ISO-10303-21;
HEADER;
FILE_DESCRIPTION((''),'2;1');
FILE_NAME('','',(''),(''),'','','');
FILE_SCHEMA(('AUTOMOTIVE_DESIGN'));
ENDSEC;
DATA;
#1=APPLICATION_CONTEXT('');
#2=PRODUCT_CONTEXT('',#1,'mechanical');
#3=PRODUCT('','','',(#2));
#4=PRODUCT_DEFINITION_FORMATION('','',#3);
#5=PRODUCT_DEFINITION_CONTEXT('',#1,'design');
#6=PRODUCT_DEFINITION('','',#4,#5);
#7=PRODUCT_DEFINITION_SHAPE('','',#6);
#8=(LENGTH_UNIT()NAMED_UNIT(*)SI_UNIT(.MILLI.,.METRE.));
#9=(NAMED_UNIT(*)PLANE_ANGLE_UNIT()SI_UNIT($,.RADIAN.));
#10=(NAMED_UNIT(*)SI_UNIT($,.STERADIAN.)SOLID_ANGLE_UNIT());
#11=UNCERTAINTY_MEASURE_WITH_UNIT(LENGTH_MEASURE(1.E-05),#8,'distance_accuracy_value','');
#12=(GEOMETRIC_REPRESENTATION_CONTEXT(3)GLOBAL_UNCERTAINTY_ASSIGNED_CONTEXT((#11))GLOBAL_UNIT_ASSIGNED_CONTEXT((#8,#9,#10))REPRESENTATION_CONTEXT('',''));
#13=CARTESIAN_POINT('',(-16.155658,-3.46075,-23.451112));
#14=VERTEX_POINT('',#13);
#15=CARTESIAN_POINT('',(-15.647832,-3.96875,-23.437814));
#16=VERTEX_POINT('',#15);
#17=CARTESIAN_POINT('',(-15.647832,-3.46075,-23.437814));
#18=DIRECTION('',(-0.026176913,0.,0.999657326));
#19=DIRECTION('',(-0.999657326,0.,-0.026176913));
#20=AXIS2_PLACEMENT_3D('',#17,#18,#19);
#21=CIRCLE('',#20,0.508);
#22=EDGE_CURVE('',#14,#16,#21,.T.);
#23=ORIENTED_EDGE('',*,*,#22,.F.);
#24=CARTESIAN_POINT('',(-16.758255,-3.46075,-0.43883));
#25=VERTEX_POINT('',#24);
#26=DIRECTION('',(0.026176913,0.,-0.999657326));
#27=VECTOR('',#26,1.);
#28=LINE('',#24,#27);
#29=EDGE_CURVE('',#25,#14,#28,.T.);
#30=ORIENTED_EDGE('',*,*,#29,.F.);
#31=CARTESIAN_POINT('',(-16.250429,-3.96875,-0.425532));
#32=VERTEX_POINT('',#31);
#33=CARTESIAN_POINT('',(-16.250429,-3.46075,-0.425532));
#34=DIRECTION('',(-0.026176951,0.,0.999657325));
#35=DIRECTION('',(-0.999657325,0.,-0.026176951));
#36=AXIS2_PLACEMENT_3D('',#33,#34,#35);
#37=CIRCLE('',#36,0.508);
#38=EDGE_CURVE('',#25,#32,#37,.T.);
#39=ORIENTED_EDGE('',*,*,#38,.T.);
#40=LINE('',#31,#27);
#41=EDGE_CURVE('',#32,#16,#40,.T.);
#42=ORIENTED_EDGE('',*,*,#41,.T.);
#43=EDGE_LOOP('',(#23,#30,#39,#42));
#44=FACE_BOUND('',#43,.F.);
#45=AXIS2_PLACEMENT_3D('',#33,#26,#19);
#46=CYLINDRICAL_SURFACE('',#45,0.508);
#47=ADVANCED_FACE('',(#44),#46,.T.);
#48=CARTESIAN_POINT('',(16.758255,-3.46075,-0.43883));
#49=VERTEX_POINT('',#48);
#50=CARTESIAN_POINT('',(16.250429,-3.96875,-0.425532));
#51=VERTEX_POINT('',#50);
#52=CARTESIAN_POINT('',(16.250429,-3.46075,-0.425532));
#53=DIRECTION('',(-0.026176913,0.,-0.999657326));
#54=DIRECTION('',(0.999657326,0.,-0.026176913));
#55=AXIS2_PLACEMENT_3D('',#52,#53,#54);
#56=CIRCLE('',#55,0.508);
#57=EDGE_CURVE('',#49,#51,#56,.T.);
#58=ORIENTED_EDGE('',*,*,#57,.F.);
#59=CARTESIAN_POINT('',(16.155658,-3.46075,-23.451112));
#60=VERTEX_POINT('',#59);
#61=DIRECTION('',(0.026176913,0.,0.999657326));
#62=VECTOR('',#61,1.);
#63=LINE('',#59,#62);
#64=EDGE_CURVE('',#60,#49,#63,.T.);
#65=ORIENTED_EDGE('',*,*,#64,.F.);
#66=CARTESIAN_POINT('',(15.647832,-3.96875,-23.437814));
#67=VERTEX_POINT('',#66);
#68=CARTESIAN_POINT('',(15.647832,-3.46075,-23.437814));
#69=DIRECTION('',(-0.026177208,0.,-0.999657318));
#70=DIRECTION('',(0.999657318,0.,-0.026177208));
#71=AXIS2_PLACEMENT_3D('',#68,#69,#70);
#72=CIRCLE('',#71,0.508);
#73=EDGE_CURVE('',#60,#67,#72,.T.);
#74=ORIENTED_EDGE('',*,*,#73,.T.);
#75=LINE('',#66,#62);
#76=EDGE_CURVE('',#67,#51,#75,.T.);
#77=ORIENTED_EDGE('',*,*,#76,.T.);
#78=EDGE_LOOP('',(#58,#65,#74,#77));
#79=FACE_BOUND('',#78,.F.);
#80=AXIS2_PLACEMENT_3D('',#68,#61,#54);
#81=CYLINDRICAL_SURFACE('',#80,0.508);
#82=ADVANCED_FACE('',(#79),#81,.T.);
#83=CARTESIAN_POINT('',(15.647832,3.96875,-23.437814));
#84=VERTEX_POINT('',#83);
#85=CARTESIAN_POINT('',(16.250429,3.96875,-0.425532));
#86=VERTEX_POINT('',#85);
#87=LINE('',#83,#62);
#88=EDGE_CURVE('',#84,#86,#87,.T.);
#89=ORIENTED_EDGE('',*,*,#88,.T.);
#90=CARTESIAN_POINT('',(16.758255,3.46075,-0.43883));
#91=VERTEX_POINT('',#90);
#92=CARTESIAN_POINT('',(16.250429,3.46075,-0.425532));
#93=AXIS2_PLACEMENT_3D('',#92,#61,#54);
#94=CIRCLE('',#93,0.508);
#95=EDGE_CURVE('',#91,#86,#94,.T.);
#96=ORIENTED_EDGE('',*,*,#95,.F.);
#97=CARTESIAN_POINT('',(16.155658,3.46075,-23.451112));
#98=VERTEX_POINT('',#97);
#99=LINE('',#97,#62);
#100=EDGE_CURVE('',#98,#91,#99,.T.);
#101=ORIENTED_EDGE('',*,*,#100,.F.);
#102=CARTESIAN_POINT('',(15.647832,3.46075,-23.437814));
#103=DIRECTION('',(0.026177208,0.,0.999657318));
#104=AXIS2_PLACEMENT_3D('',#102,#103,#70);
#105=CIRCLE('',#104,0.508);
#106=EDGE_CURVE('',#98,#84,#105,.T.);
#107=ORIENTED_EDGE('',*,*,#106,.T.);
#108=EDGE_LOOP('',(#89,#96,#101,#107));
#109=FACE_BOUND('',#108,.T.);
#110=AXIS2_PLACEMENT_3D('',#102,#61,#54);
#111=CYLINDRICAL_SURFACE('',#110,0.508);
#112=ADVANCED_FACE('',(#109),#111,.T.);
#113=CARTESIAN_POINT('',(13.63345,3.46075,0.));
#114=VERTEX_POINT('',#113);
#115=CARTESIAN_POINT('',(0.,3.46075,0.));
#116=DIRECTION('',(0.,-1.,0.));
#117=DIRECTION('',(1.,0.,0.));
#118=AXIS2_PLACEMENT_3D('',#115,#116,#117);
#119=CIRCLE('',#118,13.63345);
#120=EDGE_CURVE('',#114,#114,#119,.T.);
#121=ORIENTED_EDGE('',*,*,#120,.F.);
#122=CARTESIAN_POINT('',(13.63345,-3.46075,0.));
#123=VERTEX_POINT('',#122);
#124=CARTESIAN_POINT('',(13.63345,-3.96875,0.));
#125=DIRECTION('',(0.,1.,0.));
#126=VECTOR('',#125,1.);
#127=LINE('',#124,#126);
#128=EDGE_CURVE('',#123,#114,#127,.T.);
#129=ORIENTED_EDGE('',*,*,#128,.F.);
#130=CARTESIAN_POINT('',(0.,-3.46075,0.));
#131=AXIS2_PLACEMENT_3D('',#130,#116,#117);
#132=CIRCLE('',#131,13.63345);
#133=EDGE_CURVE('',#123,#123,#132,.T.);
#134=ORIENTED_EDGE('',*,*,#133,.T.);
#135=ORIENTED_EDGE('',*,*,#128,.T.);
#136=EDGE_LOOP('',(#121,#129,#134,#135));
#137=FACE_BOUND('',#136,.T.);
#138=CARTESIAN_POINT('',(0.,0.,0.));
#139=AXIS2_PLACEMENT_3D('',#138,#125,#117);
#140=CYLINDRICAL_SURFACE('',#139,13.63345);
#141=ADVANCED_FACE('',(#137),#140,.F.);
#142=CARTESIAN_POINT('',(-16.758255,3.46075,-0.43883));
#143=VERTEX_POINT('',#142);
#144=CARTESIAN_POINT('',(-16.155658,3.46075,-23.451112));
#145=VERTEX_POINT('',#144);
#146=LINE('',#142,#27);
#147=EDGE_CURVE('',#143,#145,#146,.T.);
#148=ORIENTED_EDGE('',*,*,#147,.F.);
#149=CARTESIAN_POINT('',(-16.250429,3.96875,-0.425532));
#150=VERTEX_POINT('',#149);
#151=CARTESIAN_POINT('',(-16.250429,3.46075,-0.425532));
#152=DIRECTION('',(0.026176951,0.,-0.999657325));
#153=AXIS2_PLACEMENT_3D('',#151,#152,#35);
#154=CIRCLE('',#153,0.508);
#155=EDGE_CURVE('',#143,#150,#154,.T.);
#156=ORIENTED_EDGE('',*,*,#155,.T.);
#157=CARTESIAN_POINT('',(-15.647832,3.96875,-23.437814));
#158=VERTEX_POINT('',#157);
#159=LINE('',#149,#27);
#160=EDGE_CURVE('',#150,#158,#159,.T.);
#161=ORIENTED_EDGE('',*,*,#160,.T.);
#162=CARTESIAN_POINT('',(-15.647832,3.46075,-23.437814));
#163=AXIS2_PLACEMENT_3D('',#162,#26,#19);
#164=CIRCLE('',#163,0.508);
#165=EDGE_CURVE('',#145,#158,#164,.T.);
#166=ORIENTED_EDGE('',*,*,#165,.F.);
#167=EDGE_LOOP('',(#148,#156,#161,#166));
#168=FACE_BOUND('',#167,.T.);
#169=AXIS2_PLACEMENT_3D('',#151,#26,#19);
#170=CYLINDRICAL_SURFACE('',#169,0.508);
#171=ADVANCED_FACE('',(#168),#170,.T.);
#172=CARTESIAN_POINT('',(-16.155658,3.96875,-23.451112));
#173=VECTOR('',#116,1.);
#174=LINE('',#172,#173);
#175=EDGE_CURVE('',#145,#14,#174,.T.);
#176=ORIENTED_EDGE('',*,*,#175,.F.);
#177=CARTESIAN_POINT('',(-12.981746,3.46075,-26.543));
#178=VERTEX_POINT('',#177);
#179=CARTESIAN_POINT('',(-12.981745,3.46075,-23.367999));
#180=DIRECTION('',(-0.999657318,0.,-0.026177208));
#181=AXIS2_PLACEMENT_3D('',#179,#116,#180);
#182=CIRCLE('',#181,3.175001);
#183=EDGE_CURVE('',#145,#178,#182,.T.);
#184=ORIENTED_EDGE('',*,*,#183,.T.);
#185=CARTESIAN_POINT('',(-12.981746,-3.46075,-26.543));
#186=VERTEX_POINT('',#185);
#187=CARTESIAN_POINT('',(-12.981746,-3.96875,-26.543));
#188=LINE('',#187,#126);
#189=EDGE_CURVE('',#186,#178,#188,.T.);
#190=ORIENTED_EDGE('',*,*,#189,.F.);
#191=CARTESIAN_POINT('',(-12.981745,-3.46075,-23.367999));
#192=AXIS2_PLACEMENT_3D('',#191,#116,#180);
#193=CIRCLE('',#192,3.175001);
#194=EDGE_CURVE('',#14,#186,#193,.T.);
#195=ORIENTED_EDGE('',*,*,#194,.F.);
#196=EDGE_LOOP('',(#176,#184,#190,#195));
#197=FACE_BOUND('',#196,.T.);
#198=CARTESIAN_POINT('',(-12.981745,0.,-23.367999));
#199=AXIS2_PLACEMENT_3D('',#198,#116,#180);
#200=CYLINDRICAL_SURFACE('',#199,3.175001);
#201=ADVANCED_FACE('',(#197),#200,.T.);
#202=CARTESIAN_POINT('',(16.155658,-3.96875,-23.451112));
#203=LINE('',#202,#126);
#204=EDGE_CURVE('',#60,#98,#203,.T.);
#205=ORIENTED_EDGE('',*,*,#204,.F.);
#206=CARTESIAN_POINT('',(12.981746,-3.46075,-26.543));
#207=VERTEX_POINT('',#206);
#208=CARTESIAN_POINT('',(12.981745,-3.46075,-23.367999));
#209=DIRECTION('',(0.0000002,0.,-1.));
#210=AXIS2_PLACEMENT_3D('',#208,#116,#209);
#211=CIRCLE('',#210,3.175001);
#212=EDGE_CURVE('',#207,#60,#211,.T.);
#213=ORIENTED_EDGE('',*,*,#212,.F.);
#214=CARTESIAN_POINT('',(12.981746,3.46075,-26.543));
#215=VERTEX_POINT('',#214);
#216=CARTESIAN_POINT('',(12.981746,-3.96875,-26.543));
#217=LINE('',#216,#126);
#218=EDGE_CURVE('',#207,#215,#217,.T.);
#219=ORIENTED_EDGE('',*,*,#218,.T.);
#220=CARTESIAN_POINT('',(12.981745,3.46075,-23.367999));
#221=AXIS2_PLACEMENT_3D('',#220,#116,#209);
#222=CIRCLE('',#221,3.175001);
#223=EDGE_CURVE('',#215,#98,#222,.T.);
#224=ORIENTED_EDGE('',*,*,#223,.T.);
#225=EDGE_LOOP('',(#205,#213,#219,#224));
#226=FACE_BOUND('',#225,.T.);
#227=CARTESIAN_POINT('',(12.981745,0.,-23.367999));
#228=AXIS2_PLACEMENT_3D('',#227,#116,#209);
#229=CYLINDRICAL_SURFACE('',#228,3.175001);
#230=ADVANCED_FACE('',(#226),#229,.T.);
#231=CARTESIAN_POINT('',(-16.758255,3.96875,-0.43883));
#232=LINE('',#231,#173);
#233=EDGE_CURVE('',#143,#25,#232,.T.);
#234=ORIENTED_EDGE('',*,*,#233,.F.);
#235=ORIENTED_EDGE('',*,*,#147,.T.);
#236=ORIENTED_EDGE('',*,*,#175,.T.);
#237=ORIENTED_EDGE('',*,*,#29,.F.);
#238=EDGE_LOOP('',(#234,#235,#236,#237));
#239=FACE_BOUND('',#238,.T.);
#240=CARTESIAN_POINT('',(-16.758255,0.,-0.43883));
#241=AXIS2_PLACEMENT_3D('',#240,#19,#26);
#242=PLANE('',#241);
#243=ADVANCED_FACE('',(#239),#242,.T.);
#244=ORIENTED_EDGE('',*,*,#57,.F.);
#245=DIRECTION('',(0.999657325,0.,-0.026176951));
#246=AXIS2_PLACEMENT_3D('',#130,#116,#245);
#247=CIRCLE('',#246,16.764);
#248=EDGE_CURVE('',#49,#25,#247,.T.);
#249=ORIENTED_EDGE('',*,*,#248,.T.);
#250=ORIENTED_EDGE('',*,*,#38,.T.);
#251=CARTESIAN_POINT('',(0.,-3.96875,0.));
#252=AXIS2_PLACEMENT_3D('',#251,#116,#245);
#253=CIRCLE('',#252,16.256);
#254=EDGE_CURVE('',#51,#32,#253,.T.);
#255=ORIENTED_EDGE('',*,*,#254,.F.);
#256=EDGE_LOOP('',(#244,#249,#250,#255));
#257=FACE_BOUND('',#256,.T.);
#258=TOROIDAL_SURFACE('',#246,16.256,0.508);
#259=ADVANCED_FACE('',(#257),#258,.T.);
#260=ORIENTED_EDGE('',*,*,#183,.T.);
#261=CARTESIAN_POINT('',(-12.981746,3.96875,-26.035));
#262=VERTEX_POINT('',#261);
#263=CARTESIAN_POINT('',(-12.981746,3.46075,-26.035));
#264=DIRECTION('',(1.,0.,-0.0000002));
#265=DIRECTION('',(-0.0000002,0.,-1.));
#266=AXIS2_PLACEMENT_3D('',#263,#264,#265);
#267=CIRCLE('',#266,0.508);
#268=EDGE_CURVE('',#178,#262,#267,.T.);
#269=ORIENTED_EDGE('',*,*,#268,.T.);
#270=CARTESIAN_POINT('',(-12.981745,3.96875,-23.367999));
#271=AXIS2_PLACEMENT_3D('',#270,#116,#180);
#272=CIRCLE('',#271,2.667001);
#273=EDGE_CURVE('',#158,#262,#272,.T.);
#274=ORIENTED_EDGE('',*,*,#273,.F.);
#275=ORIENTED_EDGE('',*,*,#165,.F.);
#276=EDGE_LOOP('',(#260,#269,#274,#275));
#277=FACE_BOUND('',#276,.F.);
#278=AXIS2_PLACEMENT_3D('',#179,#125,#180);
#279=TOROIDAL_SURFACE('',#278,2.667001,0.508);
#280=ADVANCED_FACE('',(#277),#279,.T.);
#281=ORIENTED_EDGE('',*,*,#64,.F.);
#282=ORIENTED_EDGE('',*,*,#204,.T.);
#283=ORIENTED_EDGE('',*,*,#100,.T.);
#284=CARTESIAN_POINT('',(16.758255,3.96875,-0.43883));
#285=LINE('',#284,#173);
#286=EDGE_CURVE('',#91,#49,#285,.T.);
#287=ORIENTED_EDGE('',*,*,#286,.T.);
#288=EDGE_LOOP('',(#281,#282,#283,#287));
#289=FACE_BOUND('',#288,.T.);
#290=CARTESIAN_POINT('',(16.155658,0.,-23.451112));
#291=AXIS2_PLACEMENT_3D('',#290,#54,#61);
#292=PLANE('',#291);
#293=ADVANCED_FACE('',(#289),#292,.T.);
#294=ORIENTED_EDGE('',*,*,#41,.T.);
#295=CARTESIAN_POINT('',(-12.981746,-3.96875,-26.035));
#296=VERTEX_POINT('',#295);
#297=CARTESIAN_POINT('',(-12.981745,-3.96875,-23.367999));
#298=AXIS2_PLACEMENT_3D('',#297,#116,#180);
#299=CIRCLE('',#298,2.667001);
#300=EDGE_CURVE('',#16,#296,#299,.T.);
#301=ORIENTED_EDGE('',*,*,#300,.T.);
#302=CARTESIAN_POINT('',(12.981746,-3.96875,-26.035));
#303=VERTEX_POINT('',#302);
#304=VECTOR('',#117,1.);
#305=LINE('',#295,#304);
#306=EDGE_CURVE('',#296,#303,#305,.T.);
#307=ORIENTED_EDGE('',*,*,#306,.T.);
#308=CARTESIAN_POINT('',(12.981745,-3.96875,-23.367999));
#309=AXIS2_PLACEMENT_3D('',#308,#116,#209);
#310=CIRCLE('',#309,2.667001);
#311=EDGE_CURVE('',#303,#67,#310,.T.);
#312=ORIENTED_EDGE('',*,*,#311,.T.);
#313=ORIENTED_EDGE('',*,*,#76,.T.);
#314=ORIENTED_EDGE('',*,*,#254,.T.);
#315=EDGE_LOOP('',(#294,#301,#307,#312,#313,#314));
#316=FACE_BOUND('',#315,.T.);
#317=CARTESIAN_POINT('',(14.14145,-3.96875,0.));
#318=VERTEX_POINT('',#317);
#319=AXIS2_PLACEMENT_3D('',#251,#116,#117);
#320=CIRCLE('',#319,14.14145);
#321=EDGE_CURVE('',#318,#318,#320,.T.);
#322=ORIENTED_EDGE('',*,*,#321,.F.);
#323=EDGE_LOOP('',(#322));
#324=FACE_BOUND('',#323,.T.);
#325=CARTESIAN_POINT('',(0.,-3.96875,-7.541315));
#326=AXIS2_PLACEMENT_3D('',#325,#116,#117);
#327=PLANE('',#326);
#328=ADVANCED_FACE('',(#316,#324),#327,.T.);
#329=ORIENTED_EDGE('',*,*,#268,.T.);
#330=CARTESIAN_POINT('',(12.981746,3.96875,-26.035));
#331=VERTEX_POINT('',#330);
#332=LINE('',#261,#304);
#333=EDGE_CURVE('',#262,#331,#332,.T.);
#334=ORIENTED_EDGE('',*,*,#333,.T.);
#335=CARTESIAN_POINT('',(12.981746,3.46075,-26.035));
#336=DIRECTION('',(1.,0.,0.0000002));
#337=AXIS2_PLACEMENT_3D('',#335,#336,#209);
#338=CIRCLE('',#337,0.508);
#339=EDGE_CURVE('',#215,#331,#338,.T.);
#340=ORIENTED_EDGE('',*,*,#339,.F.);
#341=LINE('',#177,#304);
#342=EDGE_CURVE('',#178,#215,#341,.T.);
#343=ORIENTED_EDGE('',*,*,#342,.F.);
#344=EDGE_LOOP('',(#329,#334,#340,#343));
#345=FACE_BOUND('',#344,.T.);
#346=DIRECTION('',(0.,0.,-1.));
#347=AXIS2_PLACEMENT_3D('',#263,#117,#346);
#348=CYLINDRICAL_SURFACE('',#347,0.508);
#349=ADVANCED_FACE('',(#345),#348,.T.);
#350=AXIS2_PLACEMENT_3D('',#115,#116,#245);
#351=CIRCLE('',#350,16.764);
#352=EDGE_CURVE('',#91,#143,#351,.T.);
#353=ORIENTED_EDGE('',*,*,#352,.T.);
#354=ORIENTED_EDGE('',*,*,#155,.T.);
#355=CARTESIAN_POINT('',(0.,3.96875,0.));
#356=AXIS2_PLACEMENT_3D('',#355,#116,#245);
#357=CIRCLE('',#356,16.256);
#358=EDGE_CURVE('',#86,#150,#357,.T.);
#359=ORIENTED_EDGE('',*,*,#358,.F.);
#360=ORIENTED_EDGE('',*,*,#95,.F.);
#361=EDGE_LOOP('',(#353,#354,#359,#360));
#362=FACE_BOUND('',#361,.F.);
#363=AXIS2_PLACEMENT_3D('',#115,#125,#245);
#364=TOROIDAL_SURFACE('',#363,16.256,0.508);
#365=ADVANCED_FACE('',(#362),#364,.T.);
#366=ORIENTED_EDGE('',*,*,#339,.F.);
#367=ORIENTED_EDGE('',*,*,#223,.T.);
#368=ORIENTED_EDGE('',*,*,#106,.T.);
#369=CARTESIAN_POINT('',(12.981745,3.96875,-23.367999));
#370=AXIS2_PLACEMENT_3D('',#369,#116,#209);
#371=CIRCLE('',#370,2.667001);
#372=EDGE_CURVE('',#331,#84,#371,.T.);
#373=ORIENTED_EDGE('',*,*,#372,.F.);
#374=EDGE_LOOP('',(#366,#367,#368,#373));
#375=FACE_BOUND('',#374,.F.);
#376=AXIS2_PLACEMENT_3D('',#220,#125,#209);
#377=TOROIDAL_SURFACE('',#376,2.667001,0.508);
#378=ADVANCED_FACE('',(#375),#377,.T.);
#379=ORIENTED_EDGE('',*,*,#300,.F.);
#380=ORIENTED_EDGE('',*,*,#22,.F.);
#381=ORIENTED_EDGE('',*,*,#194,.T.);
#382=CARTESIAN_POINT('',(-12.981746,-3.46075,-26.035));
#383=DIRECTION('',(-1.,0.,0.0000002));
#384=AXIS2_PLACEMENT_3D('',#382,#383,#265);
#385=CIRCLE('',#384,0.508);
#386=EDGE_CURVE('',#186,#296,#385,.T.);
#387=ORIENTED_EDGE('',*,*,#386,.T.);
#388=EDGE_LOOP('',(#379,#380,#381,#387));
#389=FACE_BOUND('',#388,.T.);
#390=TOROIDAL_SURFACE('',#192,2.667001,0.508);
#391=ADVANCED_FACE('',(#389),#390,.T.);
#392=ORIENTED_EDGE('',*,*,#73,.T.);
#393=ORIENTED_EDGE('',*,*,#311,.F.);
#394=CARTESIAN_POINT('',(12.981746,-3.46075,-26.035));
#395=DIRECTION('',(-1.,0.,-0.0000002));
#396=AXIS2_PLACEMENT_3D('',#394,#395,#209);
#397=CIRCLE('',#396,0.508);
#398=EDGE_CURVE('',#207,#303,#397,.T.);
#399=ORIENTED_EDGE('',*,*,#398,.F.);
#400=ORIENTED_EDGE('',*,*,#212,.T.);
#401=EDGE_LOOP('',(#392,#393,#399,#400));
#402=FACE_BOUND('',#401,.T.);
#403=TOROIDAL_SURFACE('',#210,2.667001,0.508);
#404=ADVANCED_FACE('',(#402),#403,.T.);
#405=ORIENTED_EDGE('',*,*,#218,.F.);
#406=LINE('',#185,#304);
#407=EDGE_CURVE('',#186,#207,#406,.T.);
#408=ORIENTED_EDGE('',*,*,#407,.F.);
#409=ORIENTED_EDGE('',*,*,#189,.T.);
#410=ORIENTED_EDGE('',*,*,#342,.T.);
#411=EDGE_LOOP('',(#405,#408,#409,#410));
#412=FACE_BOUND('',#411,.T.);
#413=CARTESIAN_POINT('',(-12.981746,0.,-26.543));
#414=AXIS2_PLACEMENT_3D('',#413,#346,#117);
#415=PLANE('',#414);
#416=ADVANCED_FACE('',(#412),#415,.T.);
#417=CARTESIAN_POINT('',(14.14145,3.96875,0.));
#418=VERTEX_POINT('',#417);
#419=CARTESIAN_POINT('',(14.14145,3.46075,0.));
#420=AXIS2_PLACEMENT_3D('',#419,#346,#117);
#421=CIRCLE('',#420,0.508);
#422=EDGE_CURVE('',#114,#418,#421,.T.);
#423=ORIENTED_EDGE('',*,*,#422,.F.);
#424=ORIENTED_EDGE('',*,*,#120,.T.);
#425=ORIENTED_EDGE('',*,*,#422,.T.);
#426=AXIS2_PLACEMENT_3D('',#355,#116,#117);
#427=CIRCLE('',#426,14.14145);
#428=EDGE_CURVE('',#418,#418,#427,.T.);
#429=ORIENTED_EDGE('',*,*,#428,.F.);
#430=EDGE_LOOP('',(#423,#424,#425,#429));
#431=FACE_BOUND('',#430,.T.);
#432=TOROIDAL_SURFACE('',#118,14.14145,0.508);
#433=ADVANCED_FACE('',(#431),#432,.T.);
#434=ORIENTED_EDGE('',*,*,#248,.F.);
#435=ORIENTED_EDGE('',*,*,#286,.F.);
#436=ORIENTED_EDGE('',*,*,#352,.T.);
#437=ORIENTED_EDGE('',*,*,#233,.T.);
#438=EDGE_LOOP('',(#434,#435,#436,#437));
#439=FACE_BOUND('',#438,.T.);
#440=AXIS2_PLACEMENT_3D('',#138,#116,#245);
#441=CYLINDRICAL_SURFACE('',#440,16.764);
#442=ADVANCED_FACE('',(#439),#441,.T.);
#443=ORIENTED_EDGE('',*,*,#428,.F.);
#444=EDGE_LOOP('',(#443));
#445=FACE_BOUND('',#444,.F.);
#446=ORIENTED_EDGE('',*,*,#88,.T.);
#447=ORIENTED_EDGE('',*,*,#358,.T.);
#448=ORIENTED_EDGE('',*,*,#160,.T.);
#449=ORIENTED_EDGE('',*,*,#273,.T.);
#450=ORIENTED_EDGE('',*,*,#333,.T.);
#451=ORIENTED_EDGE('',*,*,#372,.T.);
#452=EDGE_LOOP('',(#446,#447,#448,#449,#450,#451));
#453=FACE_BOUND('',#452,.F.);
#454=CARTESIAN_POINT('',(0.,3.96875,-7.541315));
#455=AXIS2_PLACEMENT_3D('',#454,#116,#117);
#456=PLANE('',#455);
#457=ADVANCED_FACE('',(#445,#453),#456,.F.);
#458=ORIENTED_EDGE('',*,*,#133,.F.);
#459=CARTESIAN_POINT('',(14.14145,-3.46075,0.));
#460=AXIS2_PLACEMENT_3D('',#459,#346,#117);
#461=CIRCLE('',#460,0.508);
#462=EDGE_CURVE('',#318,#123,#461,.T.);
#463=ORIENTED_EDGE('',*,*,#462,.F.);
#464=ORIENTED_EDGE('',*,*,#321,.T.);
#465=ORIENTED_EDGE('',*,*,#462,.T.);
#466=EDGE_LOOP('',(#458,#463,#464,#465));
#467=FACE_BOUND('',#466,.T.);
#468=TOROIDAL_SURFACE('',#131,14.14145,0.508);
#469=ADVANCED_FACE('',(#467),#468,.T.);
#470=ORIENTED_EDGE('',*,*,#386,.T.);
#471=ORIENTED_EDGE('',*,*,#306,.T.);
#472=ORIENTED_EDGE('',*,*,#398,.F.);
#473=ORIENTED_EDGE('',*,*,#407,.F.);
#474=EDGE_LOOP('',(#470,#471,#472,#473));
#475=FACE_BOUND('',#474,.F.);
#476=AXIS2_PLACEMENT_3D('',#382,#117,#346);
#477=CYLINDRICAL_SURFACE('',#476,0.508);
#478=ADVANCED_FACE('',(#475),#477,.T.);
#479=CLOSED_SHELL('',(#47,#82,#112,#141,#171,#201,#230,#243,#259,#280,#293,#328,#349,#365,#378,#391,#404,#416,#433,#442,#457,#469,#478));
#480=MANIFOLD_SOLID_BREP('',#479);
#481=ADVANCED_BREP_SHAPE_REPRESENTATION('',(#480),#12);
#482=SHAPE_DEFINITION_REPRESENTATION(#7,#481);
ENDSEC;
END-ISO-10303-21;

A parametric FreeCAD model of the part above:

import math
import FreeCAD as App
import Part
import Sketcher

V = App.Vector
Q = App.Units.Quantity


def edges_at(feature, points):
    """Names of the edges that pass closest to the given points."""
    edges = feature.Shape.Edges
    near = lambda p: min(range(len(edges)), key=lambda i: edges[i].distToShape(Part.Vertex(*p))[0])
    return sorted({f"Edge{near(p) + 1}" for p in points})

doc = App.newDocument("Part")
body = doc.addObject("PartDesign::Body", "Body")

sketch1 = body.newObject("Sketcher::SketchObject", "Sketch")
sketch1.AttachmentSupport = (doc.getObject("XZ_Plane"), [""])
sketch1.MapMode = "FlatFace"
sketch1.addGeometry([
    Part.LineSegment(V(16.155658, -23.451112, 0), V(16.758255, -0.43883, 0)),
    Part.ArcOfCircle(Part.Circle(V(0, 0, 0), V(0, 0, 1), 16.764), math.radians(-1.5), math.radians(181.5)),
    Part.LineSegment(V(-16.758255, -0.43883, 0), V(-16.155658, -23.451112, 0)),
    Part.ArcOfCircle(Part.Circle(V(-12.981745, -23.367999, 0), V(0, 0, 1), 3.175001), math.radians(-178.499985), math.radians(-90.000011)),
    Part.LineSegment(V(-12.981746, -26.543, 0), V(12.981746, -26.543, 0)),
    Part.ArcOfCircle(Part.Circle(V(12.981745, -23.367999, 0), V(0, 0, 1), 3.175001), math.radians(-89.999989), math.radians(-1.500015)),
    Part.Circle(V(0, 0, 0), V(0, 0, 1), 13.63345),
], False)
sketch1.addConstraint([
    Sketcher.Constraint("Tangent", 0, 2, 1, 1),
    Sketcher.Constraint("Tangent", 1, 2, 2, 1),
    Sketcher.Constraint("Tangent", 2, 2, 3, 1),
    Sketcher.Constraint("Tangent", 3, 2, 4, 1),
    Sketcher.Constraint("Tangent", 4, 2, 5, 1),
    Sketcher.Constraint("Tangent", 5, 2, 0, 1),
    Sketcher.Constraint("Horizontal", 4),
    Sketcher.Constraint("Coincident", 1, 3, -1, 1),
    Sketcher.Constraint("Coincident", 6, 3, -1, 1),
    Sketcher.Constraint("Equal", 3, 5),
    Sketcher.Constraint("Horizontal", 0, 2, 1, 2),
    Sketcher.Constraint("Radius", 1, Q("0.66 in")),
    Sketcher.Constraint("Radius", 3, Q("0.125 in")),
    Sketcher.Constraint("Diameter", 6, Q("1.0735 in")),
    Sketcher.Constraint("Angle", 0, Q("88.500002 deg")),
    Sketcher.Constraint("DistanceY", 3, 3, -1, 1, Q("0.92 in")),
])
pad1 = body.newObject("PartDesign::Pad", "Pad")
pad1.Profile = sketch1
pad1.Length = Q("0.3125 in")
pad1.Midplane = True
doc.recompute()

fillet = body.newObject("PartDesign::Fillet", "Fillet")
fillet.Base = (pad1, edges_at(pad1, [
    (15.197, -3.969, -25.642),
    (16.457, -3.969, -11.945),
    (0, -3.969, 16.764),
    (-16.457, -3.969, -11.945),
    (-15.197, -3.969, -25.642),
    (0, -3.969, -26.543),
    (-13.633, -3.969, 0),
    (15.197, 3.969, -25.642),
    (16.457, 3.969, -11.945),
    (0, 3.969, 16.764),
    (-16.457, 3.969, -11.945),
    (-15.197, 3.969, -25.642),
    (0, 3.969, -26.543),
    (-13.633, 3.969, 0),
]))
fillet.Radius = Q("0.02 in")

doc.recompute()
